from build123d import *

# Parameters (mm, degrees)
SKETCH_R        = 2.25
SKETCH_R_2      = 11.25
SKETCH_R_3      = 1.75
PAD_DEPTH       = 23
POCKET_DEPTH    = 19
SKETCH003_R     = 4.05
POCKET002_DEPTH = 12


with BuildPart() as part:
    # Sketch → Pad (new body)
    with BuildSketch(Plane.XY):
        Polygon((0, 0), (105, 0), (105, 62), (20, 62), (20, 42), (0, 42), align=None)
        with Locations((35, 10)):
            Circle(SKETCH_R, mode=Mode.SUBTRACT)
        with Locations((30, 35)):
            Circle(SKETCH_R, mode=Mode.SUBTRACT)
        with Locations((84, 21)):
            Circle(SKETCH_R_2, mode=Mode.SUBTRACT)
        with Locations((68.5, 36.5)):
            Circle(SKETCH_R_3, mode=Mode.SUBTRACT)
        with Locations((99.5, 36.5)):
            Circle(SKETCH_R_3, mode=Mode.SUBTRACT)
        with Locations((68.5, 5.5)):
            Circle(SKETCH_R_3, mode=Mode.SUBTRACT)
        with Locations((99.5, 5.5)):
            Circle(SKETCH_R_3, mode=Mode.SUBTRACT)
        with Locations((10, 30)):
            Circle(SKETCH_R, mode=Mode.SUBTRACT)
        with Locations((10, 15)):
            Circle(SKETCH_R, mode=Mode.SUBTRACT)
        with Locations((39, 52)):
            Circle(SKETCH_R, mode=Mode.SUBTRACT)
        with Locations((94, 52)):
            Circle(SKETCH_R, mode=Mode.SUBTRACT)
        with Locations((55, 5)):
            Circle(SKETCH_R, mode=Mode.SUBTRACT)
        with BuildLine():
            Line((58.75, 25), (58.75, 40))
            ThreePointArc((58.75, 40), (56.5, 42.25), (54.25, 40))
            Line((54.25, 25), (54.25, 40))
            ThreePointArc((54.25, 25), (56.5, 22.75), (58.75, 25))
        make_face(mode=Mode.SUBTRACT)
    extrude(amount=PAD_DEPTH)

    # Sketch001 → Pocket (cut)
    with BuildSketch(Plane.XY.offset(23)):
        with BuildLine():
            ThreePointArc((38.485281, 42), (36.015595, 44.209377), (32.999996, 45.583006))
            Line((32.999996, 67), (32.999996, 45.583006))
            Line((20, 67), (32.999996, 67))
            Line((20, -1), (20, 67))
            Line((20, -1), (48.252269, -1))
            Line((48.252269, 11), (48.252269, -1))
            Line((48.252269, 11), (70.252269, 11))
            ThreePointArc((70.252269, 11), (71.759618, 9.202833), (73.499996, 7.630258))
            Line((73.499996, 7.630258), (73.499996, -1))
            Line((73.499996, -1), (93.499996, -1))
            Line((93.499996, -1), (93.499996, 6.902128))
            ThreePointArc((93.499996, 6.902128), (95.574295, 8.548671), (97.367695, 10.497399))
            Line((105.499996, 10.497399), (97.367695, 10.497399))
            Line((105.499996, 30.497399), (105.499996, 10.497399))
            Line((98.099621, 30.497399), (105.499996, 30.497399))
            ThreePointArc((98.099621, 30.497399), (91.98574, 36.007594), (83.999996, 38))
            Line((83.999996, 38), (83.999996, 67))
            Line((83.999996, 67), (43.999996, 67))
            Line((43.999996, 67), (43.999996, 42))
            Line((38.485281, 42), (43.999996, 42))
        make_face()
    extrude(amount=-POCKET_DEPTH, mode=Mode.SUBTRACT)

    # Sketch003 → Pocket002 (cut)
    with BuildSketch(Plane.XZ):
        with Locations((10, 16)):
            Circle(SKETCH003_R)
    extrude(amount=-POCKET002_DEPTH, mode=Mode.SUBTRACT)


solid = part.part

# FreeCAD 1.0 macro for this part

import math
import FreeCAD as App
import Part
import Sketcher

V = App.Vector

doc = App.newDocument("Part")
body = doc.addObject("PartDesign::Body", "Body")

sketch1 = body.newObject("Sketcher::SketchObject", "Sketch")
sketch1.AttachmentSupport = (doc.getObject("XY_Plane"), [""])
sketch1.MapMode = "FlatFace"
sketch1.addGeometry([
    Part.LineSegment(V(0, 0, 0), V(105, 0, 0)),
    Part.LineSegment(V(105, 0, 0), V(105, 62, 0)),
    Part.LineSegment(V(105, 62, 0), V(20, 62, 0)),
    Part.LineSegment(V(20, 62, 0), V(20, 42, 0)),
    Part.LineSegment(V(20, 42, 0), V(0, 42, 0)),
    Part.LineSegment(V(0, 42, 0), V(0, 0, 0)),
    Part.Circle(V(10, 15, 0), V(0, 0, 1), 2.2),
    Part.Circle(V(35, 10, 0), V(0, 0, 1), 2.2),
    Part.Circle(V(55, 5, 0), V(0, 0, 1), 2.2),
    Part.Circle(V(68.5, 5.5, 0), V(0, 0, 1), 1.8),
    Part.Circle(V(99.5, 5.5, 0), V(0, 0, 1), 1.8),
    Part.Circle(V(84, 21, 0), V(0, 0, 1), 11.2),
    Part.Circle(V(10, 30, 0), V(0, 0, 1), 2.2),
    Part.Circle(V(30, 35, 0), V(0, 0, 1), 2.2),
    Part.Circle(V(39, 52, 0), V(0, 0, 1), 2.2),
    Part.LineSegment(V(58.8, 40, 0), V(58.8, 25, 0)),
    Part.ArcOfCircle(Part.Circle(V(56.5, 25, 0), V(0, 0, 1), 2.2), math.radians(180), math.radians(360)),
    Part.LineSegment(V(54.2, 25, 0), V(54.2, 40, 0)),
    Part.ArcOfCircle(Part.Circle(V(56.5, 40, 0), V(0, 0, 1), 2.2), math.radians(0), math.radians(180)),
    Part.Circle(V(68.5, 36.5, 0), V(0, 0, 1), 1.8),
    Part.Circle(V(99.5, 36.5, 0), V(0, 0, 1), 1.8),
    Part.Circle(V(94, 52, 0), V(0, 0, 1), 2.2),
], False)
sketch1.addConstraint([
    Sketcher.Constraint("Coincident", 0, 2, 1, 1),
    Sketcher.Constraint("Coincident", 1, 2, 2, 1),
    Sketcher.Constraint("Coincident", 2, 2, 3, 1),
    Sketcher.Constraint("Coincident", 3, 2, 4, 1),
    Sketcher.Constraint("Coincident", 4, 2, 5, 1),
    Sketcher.Constraint("Coincident", 5, 2, 0, 1),
    Sketcher.Constraint("Tangent", 15, 2, 16, 2),
    Sketcher.Constraint("Tangent", 16, 1, 17, 1),
    Sketcher.Constraint("Tangent", 17, 2, 18, 2),
    Sketcher.Constraint("Tangent", 18, 1, 15, 1),
    Sketcher.Constraint("Horizontal", 0),
    Sketcher.Constraint("Vertical", 1),
    Sketcher.Constraint("Horizontal", 2),
    Sketcher.Constraint("Vertical", 3),
    Sketcher.Constraint("Horizontal", 4),
    Sketcher.Constraint("Vertical", 5),
    Sketcher.Constraint("Vertical", 15),
    Sketcher.Constraint("Vertical", 17),
    Sketcher.Constraint("Coincident", 5, 2, -1, 1),
    Sketcher.Constraint("Equal", 6, 7),
    Sketcher.Constraint("Equal", 7, 8),
    Sketcher.Constraint("Equal", 9, 10),
    Sketcher.Constraint("Equal", 8, 12),
    Sketcher.Constraint("Equal", 12, 13),
    Sketcher.Constraint("Equal", 13, 14),
    Sketcher.Constraint("Equal", 14, 16),
    Sketcher.Constraint("Equal", 10, 19),
    Sketcher.Constraint("Equal", 19, 20),
    Sketcher.Constraint("Equal", 18, 21),
    Sketcher.Constraint("Horizontal", 9, 3, 10, 3),
    Sketcher.Constraint("Horizontal", 19, 3, 20, 3),
    Sketcher.Constraint("Horizontal", 14, 3, 21, 3),
    Sketcher.Constraint("Vertical", 6, 3, 12, 3),
    Sketcher.Constraint("Vertical", 9, 3, 19, 3),
    Sketcher.Constraint("Vertical", 10, 3, 20, 3),
    Sketcher.Constraint("Equal", 4, 3),
    Sketcher.Constraint("Diameter", 6, 4.5),
    Sketcher.Constraint("Diameter", 9, 3.5),
    Sketcher.Constraint("Diameter", 11, 22.5),
    Sketcher.Constraint("DistanceX", 0, 1, 0, 2, 105.0),
    Sketcher.Constraint("DistanceX", 2, 2, 2, 1, 85.0),
    Sketcher.Constraint("DistanceY", 1, 1, 1, 2, 62.0),
    Sketcher.Constraint("DistanceY", 15, 2, 15, 1, 15.0),
    Sketcher.Constraint("DistanceX", -1, 1, 6, 3, 10.0),
    Sketcher.Constraint("DistanceY", -1, 1, 6, 3, 15.0),
    Sketcher.Constraint("DistanceX", -1, 1, 7, 3, 35.0),
    Sketcher.Constraint("DistanceY", -1, 1, 7, 3, 10.0),
    Sketcher.Constraint("DistanceX", -1, 1, 8, 3, 55.0),
    Sketcher.Constraint("DistanceY", -1, 1, 8, 3, 5.0),
    Sketcher.Constraint("DistanceX", -1, 1, 11, 3, 84.0),
    Sketcher.Constraint("DistanceY", -1, 1, 11, 3, 21.0),
    Sketcher.Constraint("DistanceY", -1, 1, 12, 3, 30.0),
    Sketcher.Constraint("DistanceX", -1, 1, 13, 3, 30.0),
    Sketcher.Constraint("DistanceY", -1, 1, 13, 3, 35.0),
    Sketcher.Constraint("DistanceX", -1, 1, 14, 3, 39.0),
    Sketcher.Constraint("DistanceY", -1, 1, 14, 3, 52.0),
    Sketcher.Constraint("DistanceY", -1, 1, 16, 3, 25.0),
    Sketcher.Constraint("DistanceX", -1, 1, 21, 3, 94.0),
    Sketcher.Constraint("DistanceX", 9, 3, 10, 3, 31.0),
    Sketcher.Constraint("DistanceX", 16, 3, 9, 3, 12.0),
    Sketcher.Constraint("DistanceY", 9, 3, 19, 3, 31.0),
    Sketcher.Constraint("DistanceX", -1, 1, 9, 3, 68.5),
    Sketcher.Constraint("DistanceY", -1, 1, 9, 3, 5.5),
])
pad1 = body.newObject("PartDesign::Pad", "Pad")
pad1.Profile = sketch1
pad1.Length = 23

sketch2 = body.newObject("Sketcher::SketchObject", "Sketch001")
sketch2.AttachmentSupport = (doc.getObject("XY_Plane"), [""])
sketch2.MapMode = "FlatFace"
sketch2.AttachmentOffset = App.Placement(V(0, 0, 23), App.Rotation())
sketch2.addGeometry([
    Part.ArcOfCircle(Part.Circle(V(30, 35, 0), V(0, 0, 1), 11), math.radians(40), math.radians(74)),
    Part.LineSegment(V(33, 45.6, 0), V(33, 67, 0)),
    Part.LineSegment(V(33, 67, 0), V(20, 67, 0)),
    Part.LineSegment(V(20, 67, 0), V(20, -1, 0)),
    Part.LineSegment(V(20, -1, 0), V(48.3, -1, 0)),
    Part.LineSegment(V(48.3, -1, 0), V(48.3, 11, 0)),
    Part.LineSegment(V(48.3, 11, 0), V(70.3, 11, 0)),
    Part.ArcOfCircle(Part.Circle(V(84, 21, 0), V(0, 0, 1), 17), math.radians(-143.97), math.radians(-128.14)),
    Part.LineSegment(V(73.5, 7.6, 0), V(73.5, -1, 0)),
    Part.LineSegment(V(73.5, -1, 0), V(93.5, -1, 0)),
    Part.LineSegment(V(93.5, -1, 0), V(93.5, 6.9, 0)),
    Part.ArcOfCircle(Part.Circle(V(84, 21, 0), V(0, 0, 1), 17), math.radians(-56.03), math.radians(-38.16)),
    Part.LineSegment(V(97.4, 10.5, 0), V(105.5, 10.5, 0)),
    Part.LineSegment(V(105.5, 10.5, 0), V(105.5, 30.5, 0)),
    Part.LineSegment(V(105.5, 30.5, 0), V(98.1, 30.5, 0)),
    Part.ArcOfCircle(Part.Circle(V(84, 21, 0), V(0, 0, 1), 17), math.radians(34), math.radians(90)),
    Part.LineSegment(V(84, 38, 0), V(84, 67, 0)),
    Part.LineSegment(V(84, 67, 0), V(44, 67, 0)),
    Part.LineSegment(V(44, 67, 0), V(44, 42, 0)),
    Part.LineSegment(V(44, 42, 0), V(38.5, 42, 0)),
], False)
sketch2.addConstraint([
    Sketcher.Constraint("Coincident", 0, 2, 1, 1),
    Sketcher.Constraint("Coincident", 1, 2, 2, 1),
    Sketcher.Constraint("Coincident", 2, 2, 3, 1),
    Sketcher.Constraint("Coincident", 3, 2, 4, 1),
    Sketcher.Constraint("Coincident", 4, 2, 5, 1),
    Sketcher.Constraint("Coincident", 5, 2, 6, 1),
    Sketcher.Constraint("Coincident", 6, 2, 7, 1),
    Sketcher.Constraint("Coincident", 7, 2, 8, 1),
    Sketcher.Constraint("Coincident", 8, 2, 9, 1),
    Sketcher.Constraint("Coincident", 9, 2, 10, 1),
    Sketcher.Constraint("Coincident", 10, 2, 11, 1),
    Sketcher.Constraint("Coincident", 11, 2, 12, 1),
    Sketcher.Constraint("Coincident", 12, 2, 13, 1),
    Sketcher.Constraint("Coincident", 13, 2, 14, 1),
    Sketcher.Constraint("Coincident", 14, 2, 15, 1),
    Sketcher.Constraint("Coincident", 15, 2, 16, 1),
    Sketcher.Constraint("Coincident", 16, 2, 17, 1),
    Sketcher.Constraint("Coincident", 17, 2, 18, 1),
    Sketcher.Constraint("Coincident", 18, 2, 19, 1),
    Sketcher.Constraint("Coincident", 19, 2, 0, 1),
    Sketcher.Constraint("Vertical", 1),
    Sketcher.Constraint("Horizontal", 2),
    Sketcher.Constraint("Vertical", 3),
    Sketcher.Constraint("Horizontal", 4),
    Sketcher.Constraint("Vertical", 5),
    Sketcher.Constraint("Horizontal", 6),
    Sketcher.Constraint("Vertical", 8),
    Sketcher.Constraint("Horizontal", 9),
    Sketcher.Constraint("Vertical", 10),
    Sketcher.Constraint("Horizontal", 12),
    Sketcher.Constraint("Vertical", 13),
    Sketcher.Constraint("Horizontal", 14),
    Sketcher.Constraint("Vertical", 16),
    Sketcher.Constraint("Horizontal", 17),
    Sketcher.Constraint("Vertical", 18),
    Sketcher.Constraint("Horizontal", 19),
    Sketcher.Constraint("Coincident", 15, 3, 7, 3),
    Sketcher.Constraint("Horizontal", 4, 2, 8, 2),
    Sketcher.Constraint("Horizontal", 2, 2, 16, 2),
    Sketcher.Constraint("Equal", 9, 13),
    Sketcher.Constraint("DistanceX", 6, 1, 6, 2, 22.0),
    Sketcher.Constraint("DistanceX", 9, 1, 9, 2, 20.0),
    Sketcher.Constraint("DistanceX", 17, 2, 17, 1, 40.0),
    Sketcher.Constraint("DistanceY", 3, 2, 3, 1, 68.0),
    Sketcher.Constraint("DistanceY", 5, 1, 5, 2, 12.0),
    Sketcher.Constraint("DistanceY", 16, 1, 16, 2, 29.0),
    Sketcher.Constraint("DistanceY", 18, 2, 18, 1, 25.0),
    Sketcher.Constraint("DistanceY", -1, 1, 1, 2, 67.0),
    Sketcher.Constraint("DistanceX", -1, 1, 2, 2, 20.0),
    Sketcher.Constraint("DistanceX", 10, 2, 12, 2, 12.0),
    Sketcher.Constraint("DistanceX", 1, 2, 17, 2, 11.0),
    Sketcher.Constraint("DistanceX", 15, 2, 13, 2, 21.5),
    Sketcher.Constraint("Radius", 7, 16.99999),
    Sketcher.Constraint("Radius", 11, 17.00002),
    Sketcher.Constraint("DistanceX", 12, 1, 12, 2, 8.132301),
    Sketcher.Constraint("Radius", 0, 10.999985),
    Sketcher.Constraint("Radius", 15, 17.000005),
    Sketcher.Constraint("DistanceX", 4, 1, 4, 2, 28.252269),
    Sketcher.Constraint("DistanceY", 8, 2, 8, 1, 8.630258),
    Sketcher.Constraint("DistanceY", 10, 1, 10, 2, 7.902128),
    Sketcher.Constraint("DistanceY", -1, 1, 11, 2, 10.497399),
    Sketcher.Constraint("DistanceX", 19, 2, 19, 1, 5.514715),
    Sketcher.Constraint("DistanceY", 1, 1, 1, 2, 21.416994),
])
pocket1 = body.newObject("PartDesign::Pocket", "Pocket")
pocket1.Profile = sketch2
pocket1.Length = 19

sketch3 = body.newObject("Sketcher::SketchObject", "Sketch002")
sketch3.AttachmentSupport = (doc.getObject("XZ_Plane"), [""])
sketch3.MapMode = "FlatFace"
sketch3.addGeometry(Part.Circle(V(10, 16, 0), V(0, 0, 1), 4), False)
sketch3.addConstraint([
    Sketcher.Constraint("Diameter", 0, 8.1),
    Sketcher.Constraint("DistanceX", -1, 1, 0, 3, 10.0),
    Sketcher.Constraint("DistanceY", -1, 1, 0, 3, 16.0),
])
pocket2 = body.newObject("PartDesign::Pocket", "Pocket001")
pocket2.Profile = sketch3
pocket2.Length = 12

doc.recompute()
